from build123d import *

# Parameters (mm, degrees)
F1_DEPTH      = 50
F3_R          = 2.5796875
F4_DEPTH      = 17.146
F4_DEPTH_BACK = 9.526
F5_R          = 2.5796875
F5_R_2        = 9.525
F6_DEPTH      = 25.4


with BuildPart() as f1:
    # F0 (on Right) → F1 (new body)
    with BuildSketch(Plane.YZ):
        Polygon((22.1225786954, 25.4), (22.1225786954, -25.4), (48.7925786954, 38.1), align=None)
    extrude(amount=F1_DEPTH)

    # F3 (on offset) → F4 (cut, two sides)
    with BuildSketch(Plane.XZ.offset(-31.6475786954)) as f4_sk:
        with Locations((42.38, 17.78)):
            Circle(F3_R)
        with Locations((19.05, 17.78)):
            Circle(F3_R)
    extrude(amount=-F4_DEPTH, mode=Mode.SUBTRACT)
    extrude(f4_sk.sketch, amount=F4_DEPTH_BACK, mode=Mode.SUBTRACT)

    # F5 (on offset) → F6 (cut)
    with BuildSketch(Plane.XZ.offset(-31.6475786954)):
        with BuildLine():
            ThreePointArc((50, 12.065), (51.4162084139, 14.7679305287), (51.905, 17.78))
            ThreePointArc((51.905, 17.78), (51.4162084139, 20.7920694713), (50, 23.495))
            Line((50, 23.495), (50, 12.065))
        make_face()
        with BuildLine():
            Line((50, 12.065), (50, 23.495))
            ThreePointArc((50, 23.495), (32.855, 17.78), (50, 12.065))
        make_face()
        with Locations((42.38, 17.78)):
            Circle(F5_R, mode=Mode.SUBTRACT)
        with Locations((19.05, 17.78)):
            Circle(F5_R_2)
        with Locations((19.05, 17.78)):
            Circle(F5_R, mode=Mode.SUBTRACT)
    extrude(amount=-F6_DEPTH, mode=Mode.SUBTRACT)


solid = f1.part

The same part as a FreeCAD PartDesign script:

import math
import FreeCAD as App
import Part
import Sketcher

V = App.Vector
Q = App.Units.Quantity

doc = App.newDocument("Part")
body = doc.addObject("PartDesign::Body", "Body")

# Sketch on YZ plane
sketch1 = doc.addObject("Sketcher::SketchObject", "Sketch")
body.addObject(sketch1)
sketch1.AttachmentSupport = (doc.YZ_Plane, [""])
sketch1.MapMode = "FlatFace"
sketch1.addGeometry([
    Part.LineSegment(V(22.122579, 25.4, 0), V(22.122579, -25.4, 0)),
    Part.LineSegment(V(22.122579, -25.4, 0), V(48.792579, 38.1, 0)),
    Part.LineSegment(V(48.792579, 38.1, 0), V(22.122579, 25.4, 0)),
], False)
sketch1.addConstraint([
    Sketcher.Constraint("Coincident", 0, 2, 1, 1),
    Sketcher.Constraint("Coincident", 1, 2, 2, 1),
    Sketcher.Constraint("Coincident", 2, 2, 0, 1),
    Sketcher.Constraint("Vertical", 0),
    Sketcher.Constraint("DistanceY", 0, 2, 0, 1, Q("2 in")),
    Sketcher.Constraint("DistanceY", 0, 2, -1, 1, Q("1 in")),
    Sketcher.Constraint("DistanceY", -1, 1, 1, 2, Q("1.5 in")),
    Sketcher.Constraint("DistanceX", 0, 2, 1, 2, Q("1.05 in")),
    Sketcher.Constraint("DistanceX", -1, 1, 0, 2, 22.122579),
])
pad1 = doc.addObject("PartDesign::Pad", "Pad")
body.addObject(pad1)
pad1.Profile = sketch1
pad1.Length = 50

# Sketch on XZ plane
sketch2 = doc.addObject("Sketcher::SketchObject", "Sketch001")
body.addObject(sketch2)
sketch2.AttachmentSupport = (doc.XZ_Plane, [""])
sketch2.MapMode = "FlatFace"
sketch2.AttachmentOffset = App.Placement(V(0, 0, -31.647579), App.Rotation())
sketch2.addGeometry([
    Part.Circle(V(42.38, 17.78, 0), V(0, 0, 1), 2.579687),
    Part.Circle(V(19.05, 17.78, 0), V(0, 0, 1), 2.579687),
], False)
sketch2.addConstraint([
    Sketcher.Constraint("Equal", 0, 1),
    Sketcher.Constraint("Horizontal", 0, 3, 1, 3),
    Sketcher.Constraint("Diameter", 0, Q("0.203125 in")),
    Sketcher.Constraint("DistanceY", -1, 1, 0, 3, Q("0.7 in")),
    Sketcher.Constraint("DistanceX", -1, 1, 1, 3, Q("0.75 in")),
    Sketcher.Constraint("DistanceX", -1, 1, 0, 3, 42.38),
])
pocket1 = doc.addObject("PartDesign::Pocket", "Pocket")
body.addObject(pocket1)
pocket1.Profile = sketch2
pocket1.Type = "ThroughAll"
pocket1.Midplane = True

# Sketch on XZ plane
sketch3 = doc.addObject("Sketcher::SketchObject", "Sketch002")
body.addObject(sketch3)
sketch3.AttachmentSupport = (doc.XZ_Plane, [""])
sketch3.MapMode = "FlatFace"
sketch3.AttachmentOffset = App.Placement(V(0, 0, -31.647579), App.Rotation())
sketch3.addGeometry([
    Part.ArcOfCircle(Part.Circle(V(42.38, 17.78, 0), V(0, 0, 1), 9.525), math.radians(-36.869898), math.radians(0)),  # 0
    Part.ArcOfCircle(Part.Circle(V(42.38, 17.78, 0), V(0, 0, 1), 9.525), math.radians(0), math.radians(36.869898)),  # 1
    Part.ArcOfCircle(Part.Circle(V(42.38, 17.78, 0), V(0, 0, 1), 9.525), math.radians(36.869898), math.radians(323.130102)),  # 2
    Part.Circle(V(42.38, 17.78, 0), V(0, 0, 1), 2.579687),  # 3
    Part.Circle(V(19.05, 17.78, 0), V(0, 0, 1), 9.525),  # 4
    Part.Circle(V(19.05, 17.78, 0), V(0, 0, 1), 2.579687),  # 5
], False)
sketch3.addConstraint([
    Sketcher.Constraint("Tangent", 0, 2, 1, 1),
    Sketcher.Constraint("Tangent", 1, 2, 2, 1),
    Sketcher.Constraint("Tangent", 2, 2, 0, 1),
    Sketcher.Constraint("Coincident", 3, 3, 0, 3),
    Sketcher.Constraint("Coincident", 5, 3, 4, 3),
    Sketcher.Constraint("Equal", 2, 4),
    Sketcher.Constraint("Equal", 3, 5),
    Sketcher.Constraint("Horizontal", 3, 3, 4, 3),
    Sketcher.Constraint("Horizontal", 5, 3, 0, 2),
    Sketcher.Constraint("Vertical", 1, 2, 2, 2),
    Sketcher.Constraint("Diameter", 4, Q("0.75 in")),
    Sketcher.Constraint("Diameter", 3, Q("0.203125 in")),
    Sketcher.Constraint("DistanceY", -1, 1, 0, 3, Q("0.7 in")),
    Sketcher.Constraint("DistanceX", 2, 3, 1, 2, Q("0.3 in")),
    Sketcher.Constraint("DistanceX", -1, 1, 4, 3, Q("0.75 in")),
    Sketcher.Constraint("DistanceX", -1, 1, 0, 3, 42.38),
])
pocket2 = doc.addObject("PartDesign::Pocket", "Pocket001")
body.addObject(pocket2)
pocket2.Profile = sketch3
pocket2.Length = Q("1 in")

doc.recompute()
